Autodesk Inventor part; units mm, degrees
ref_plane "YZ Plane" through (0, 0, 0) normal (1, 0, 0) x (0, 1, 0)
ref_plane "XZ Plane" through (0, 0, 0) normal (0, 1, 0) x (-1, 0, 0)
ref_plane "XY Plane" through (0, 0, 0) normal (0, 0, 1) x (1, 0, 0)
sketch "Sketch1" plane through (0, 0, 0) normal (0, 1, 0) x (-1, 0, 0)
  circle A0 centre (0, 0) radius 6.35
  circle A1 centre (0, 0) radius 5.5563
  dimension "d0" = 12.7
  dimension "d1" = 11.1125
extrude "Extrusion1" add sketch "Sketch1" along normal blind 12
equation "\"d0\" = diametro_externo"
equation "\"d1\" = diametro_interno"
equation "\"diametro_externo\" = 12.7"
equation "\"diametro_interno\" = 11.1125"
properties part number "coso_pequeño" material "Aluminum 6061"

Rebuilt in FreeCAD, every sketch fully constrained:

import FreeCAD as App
import Part
import Sketcher

V = App.Vector
Q = App.Units.Quantity

doc = App.newDocument("Part")
body = doc.addObject("PartDesign::Body", "Body")

sketch1 = doc.addObject("Sketcher::SketchObject", "Sketch")
body.addObject(sketch1)
sketch1.AttachmentSupport = (doc.XZ_Plane, [""])
sketch1.MapMode = "FlatFace"
sketch1.addGeometry([
    Part.Circle(V(0, 0, 0), V(0, 0, 1), 6.35),
    Part.Circle(V(0, 0, 0), V(0, 0, 1), 5.5563),
], False)
sketch1.addConstraint([
    Sketcher.Constraint("Coincident", 0, 3, -1, 1),
    Sketcher.Constraint("Coincident", 1, 3, -1, 1),
    Sketcher.Constraint("Diameter", 0, Q("0.5 in")),
    Sketcher.Constraint("Diameter", 1, Q("0.4375 in")),
])
pad1 = doc.addObject("PartDesign::Pad", "Pad")
body.addObject(pad1)
pad1.Profile = sketch1
pad1.Length = 12
pad1.Reversed = True

doc.recompute()
